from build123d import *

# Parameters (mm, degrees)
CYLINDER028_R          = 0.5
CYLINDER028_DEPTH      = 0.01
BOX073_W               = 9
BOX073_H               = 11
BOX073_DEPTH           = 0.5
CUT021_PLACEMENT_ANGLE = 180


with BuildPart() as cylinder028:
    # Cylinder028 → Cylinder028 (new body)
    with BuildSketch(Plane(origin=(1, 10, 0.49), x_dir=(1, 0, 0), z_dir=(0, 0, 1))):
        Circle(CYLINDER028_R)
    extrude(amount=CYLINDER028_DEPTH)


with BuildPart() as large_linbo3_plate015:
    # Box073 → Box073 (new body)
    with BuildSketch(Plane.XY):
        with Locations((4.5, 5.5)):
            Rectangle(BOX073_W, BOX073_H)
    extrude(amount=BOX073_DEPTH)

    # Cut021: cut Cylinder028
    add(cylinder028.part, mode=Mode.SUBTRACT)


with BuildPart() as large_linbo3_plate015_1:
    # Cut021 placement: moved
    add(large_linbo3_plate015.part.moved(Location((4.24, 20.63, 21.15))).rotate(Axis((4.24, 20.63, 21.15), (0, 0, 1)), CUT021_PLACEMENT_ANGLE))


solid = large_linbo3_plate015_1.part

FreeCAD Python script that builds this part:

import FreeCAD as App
import Part
import Sketcher

V = App.Vector
Q = App.Units.Quantity

doc = App.newDocument("Part")
body = doc.addObject("PartDesign::Body", "Body")

sketch1 = body.newObject("Sketcher::SketchObject", "Sketch")
sketch1.AttachmentSupport = (doc.getObject("XY_Plane"), [""])
sketch1.MapMode = "FlatFace"
sketch1.AttachmentOffset = App.Placement(V(0, 0, 0.49), App.Rotation())
sketch1.addGeometry(Part.Circle(V(1, 10, 0), V(0, 0, 1), 0.5), False)
sketch1.addConstraint([
    Sketcher.Constraint("Diameter", 0, Q("1 mm")),
    Sketcher.Constraint("DistanceX", -1, 1, 0, 3, Q("1 mm")),
    Sketcher.Constraint("DistanceY", -1, 1, 0, 3, Q("10 mm")),
])
pad1 = body.newObject("PartDesign::Pad", "Pad")
pad1.Profile = sketch1
pad1.Length = 0.01
body2 = doc.addObject("PartDesign::Body", "Body001")

sketch2 = body2.newObject("Sketcher::SketchObject", "Sketch001")
sketch2.AttachmentSupport = (doc.getObject("XY_Plane001"), [""])
sketch2.MapMode = "FlatFace"
sketch2.addGeometry([
    Part.LineSegment(V(0, 11, 0), V(0, 0, 0)),
    Part.LineSegment(V(0, 0, 0), V(9, 0, 0)),
    Part.LineSegment(V(9, 0, 0), V(9, 11, 0)),
    Part.LineSegment(V(9, 11, 0), V(0, 11, 0)),
], False)
sketch2.addConstraint([
    Sketcher.Constraint("Coincident", 0, 2, 1, 1),
    Sketcher.Constraint("Coincident", 1, 2, 2, 1),
    Sketcher.Constraint("Coincident", 2, 2, 3, 1),
    Sketcher.Constraint("Coincident", 3, 2, 0, 1),
    Sketcher.Constraint("Vertical", 0),
    Sketcher.Constraint("Horizontal", 1),
    Sketcher.Constraint("Vertical", 2),
    Sketcher.Constraint("Horizontal", 3),
    Sketcher.Constraint("Coincident", 0, 2, -1, 1),
    Sketcher.Constraint("DistanceX", 1, 1, 1, 2, Q("9 mm")),
    Sketcher.Constraint("DistanceY", 0, 2, 0, 1, Q("11 mm")),
])
pad2 = body2.newObject("PartDesign::Pad", "Pad001")
pad2.Profile = sketch2
pad2.Length = 0.5
doc.recompute()

boolean = body2.newObject("PartDesign::Boolean", "Boolean")
boolean.Type = "Cut"
boolean.addObjects([body])
body3 = doc.addObject("PartDesign::Body", "Body002")
doc.recompute()

body2.Placement = App.Placement(V(4.24, 20.63, 21.15), App.Rotation(V(0, 0, 1), 180))
boolean2 = body3.newObject("PartDesign::Boolean", "Boolean001")
boolean2.Type = "Fuse"
boolean2.addObjects([body2])

doc.recompute()
